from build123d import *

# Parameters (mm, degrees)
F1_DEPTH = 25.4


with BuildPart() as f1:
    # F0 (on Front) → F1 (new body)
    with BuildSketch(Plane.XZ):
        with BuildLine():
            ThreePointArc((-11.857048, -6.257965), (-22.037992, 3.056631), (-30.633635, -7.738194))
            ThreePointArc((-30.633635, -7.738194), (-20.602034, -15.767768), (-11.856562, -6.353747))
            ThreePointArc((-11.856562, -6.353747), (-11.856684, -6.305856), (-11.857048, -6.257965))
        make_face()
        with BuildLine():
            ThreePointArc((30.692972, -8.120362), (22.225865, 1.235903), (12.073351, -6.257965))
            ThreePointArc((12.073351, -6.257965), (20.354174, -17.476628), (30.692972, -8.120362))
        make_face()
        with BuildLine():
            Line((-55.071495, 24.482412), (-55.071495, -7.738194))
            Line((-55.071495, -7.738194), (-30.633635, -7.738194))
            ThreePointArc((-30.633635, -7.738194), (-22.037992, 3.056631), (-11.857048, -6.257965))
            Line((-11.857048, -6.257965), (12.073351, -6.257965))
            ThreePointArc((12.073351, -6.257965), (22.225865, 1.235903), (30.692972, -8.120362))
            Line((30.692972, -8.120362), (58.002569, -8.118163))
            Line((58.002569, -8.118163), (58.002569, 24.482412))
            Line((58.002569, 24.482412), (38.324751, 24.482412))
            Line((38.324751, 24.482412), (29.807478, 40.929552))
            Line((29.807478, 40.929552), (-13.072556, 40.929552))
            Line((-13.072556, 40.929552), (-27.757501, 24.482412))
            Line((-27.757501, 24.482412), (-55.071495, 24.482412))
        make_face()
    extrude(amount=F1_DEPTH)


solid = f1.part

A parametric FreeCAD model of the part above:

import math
import FreeCAD as App
import Part
import Sketcher

V = App.Vector
Q = App.Units.Quantity

doc = App.newDocument("Part")
body = doc.addObject("PartDesign::Body", "Body")

# Sketch on XZ plane
sketch1 = body.newObject("Sketcher::SketchObject", "Sketch")
sketch1.AttachmentSupport = (doc.getObject("XZ_Plane"), [""])
sketch1.MapMode = "FlatFace"
sketch1.addGeometry([
    Part.ArcOfCircle(Part.Circle(V(-21.3, -6.35, 0), V(0, 0, 1), 9.44), math.radians(-172), math.radians(0)),  # 0
    Part.ArcOfCircle(Part.Circle(V(-21.33, -6.35, 0), V(0, 0, 1), 9.48), math.radians(0), math.radians(0.58)),  # 1
    Part.LineSegment(V(-11.86, -6.26, 0), V(12.07, -6.26, 0)),  # 2
    Part.ArcOfCircle(Part.Circle(V(21.29, -8.12, 0), V(0, 0, 1), 9.4), math.radians(169), math.radians(360)),  # 3
    Part.LineSegment(V(30.69, -8.12, 0), V(58, -8.12, 0)),  # 4
    Part.LineSegment(V(58, -8.12, 0), V(58, 24.48, 0)),  # 5
    Part.LineSegment(V(58, 24.48, 0), V(38.32, 24.48, 0)),  # 6
    Part.LineSegment(V(38.32, 24.48, 0), V(29.81, 40.93, 0)),  # 7
    Part.LineSegment(V(29.81, 40.93, 0), V(-13.07, 40.93, 0)),  # 8
    Part.LineSegment(V(-13.07, 40.93, 0), V(-27.76, 24.48, 0)),  # 9
    Part.LineSegment(V(-27.76, 24.48, 0), V(-55.07, 24.48, 0)),  # 10
    Part.LineSegment(V(-55.07, 24.48, 0), V(-55.07, -7.74, 0)),  # 11
    Part.LineSegment(V(-55.07, -7.74, 0), V(-30.63, -7.74, 0)),  # 12
], False)
sketch1.addConstraint([
    Sketcher.Constraint("Coincident", 0, 2, 1, 1),
    Sketcher.Constraint("Coincident", 1, 2, 2, 1),
    Sketcher.Constraint("Coincident", 2, 2, 3, 1),
    Sketcher.Constraint("Coincident", 3, 2, 4, 1),
    Sketcher.Constraint("Coincident", 4, 2, 5, 1),
    Sketcher.Constraint("Coincident", 5, 2, 6, 1),
    Sketcher.Constraint("Coincident", 6, 2, 7, 1),
    Sketcher.Constraint("Coincident", 7, 2, 8, 1),
    Sketcher.Constraint("Coincident", 8, 2, 9, 1),
    Sketcher.Constraint("Coincident", 9, 2, 10, 1),
    Sketcher.Constraint("Coincident", 10, 2, 11, 1),
    Sketcher.Constraint("Coincident", 11, 2, 12, 1),
    Sketcher.Constraint("Coincident", 12, 2, 0, 1),
    Sketcher.Constraint("Horizontal", 2),
    Sketcher.Constraint("Vertical", 5),
    Sketcher.Constraint("Horizontal", 6),
    Sketcher.Constraint("Horizontal", 8),
    Sketcher.Constraint("Horizontal", 10),
    Sketcher.Constraint("Vertical", 11),
    Sketcher.Constraint("Horizontal", 12),
    Sketcher.Constraint("Horizontal", 6, 2, 9, 2),
    Sketcher.Constraint("DistanceX", 2, 1, 2, 2, Q("23.930399 mm")),
    Sketcher.Constraint("Radius", 0, Q("9.439575 mm")),
    Sketcher.Constraint("Radius", 1, Q("9.477897 mm")),
    Sketcher.Constraint("Radius", 3, Q("9.402952 mm")),
    Sketcher.Constraint("DistanceX", 6, 2, 6, 1, Q("19.677818 mm")),
    Sketcher.Constraint("DistanceX", 12, 1, 12, 2, Q("24.43786 mm")),
    Sketcher.Constraint("DistanceX", 9, 2, -1, 1, Q("27.757501 mm")),
    Sketcher.Constraint("DistanceY", 1, 3, 0, 3, Q("0.000199 mm")),
    Sketcher.Constraint("DistanceY", 1, 3, 0, 2, Q("0.000199 mm")),
    Sketcher.Constraint("DistanceY", 3, 2, 4, 2, Q("0.002199 mm")),
    Sketcher.Constraint("DistanceY", 3, 3, 4, 2, Q("0.0022 mm")),
    Sketcher.Constraint("DistanceX", 2, 2, 6, 2, Q("26.2514 mm")),
    Sketcher.Constraint("DistanceY", 0, 2, 8, 2, Q("47.283299 mm")),
    Sketcher.Constraint("DistanceX", 12, 2, 0, 3, Q("9.337498 mm")),
    Sketcher.Constraint("DistanceX", 8, 2, 8, 1, Q("42.880034 mm")),
    Sketcher.Constraint("DistanceX", 10, 2, 10, 1, Q("27.313994 mm")),
    Sketcher.Constraint("DistanceY", 5, 1, 5, 2, Q("32.600575 mm")),
    Sketcher.Constraint("DistanceY", 11, 2, 11, 1, Q("32.220606 mm")),
    Sketcher.Constraint("DistanceX", -1, 1, 3, 3, Q("21.29002 mm")),
    Sketcher.Constraint("DistanceY", -1, 1, 5, 2, Q("24.482412 mm")),
    Sketcher.Constraint("DistanceX", 7, 2, 5, 2, Q("28.195091 mm")),
])
pad1 = body.newObject("PartDesign::Pad", "Pad")
pad1.Profile = sketch1
pad1.Length = Q("1 in")

doc.recompute()
